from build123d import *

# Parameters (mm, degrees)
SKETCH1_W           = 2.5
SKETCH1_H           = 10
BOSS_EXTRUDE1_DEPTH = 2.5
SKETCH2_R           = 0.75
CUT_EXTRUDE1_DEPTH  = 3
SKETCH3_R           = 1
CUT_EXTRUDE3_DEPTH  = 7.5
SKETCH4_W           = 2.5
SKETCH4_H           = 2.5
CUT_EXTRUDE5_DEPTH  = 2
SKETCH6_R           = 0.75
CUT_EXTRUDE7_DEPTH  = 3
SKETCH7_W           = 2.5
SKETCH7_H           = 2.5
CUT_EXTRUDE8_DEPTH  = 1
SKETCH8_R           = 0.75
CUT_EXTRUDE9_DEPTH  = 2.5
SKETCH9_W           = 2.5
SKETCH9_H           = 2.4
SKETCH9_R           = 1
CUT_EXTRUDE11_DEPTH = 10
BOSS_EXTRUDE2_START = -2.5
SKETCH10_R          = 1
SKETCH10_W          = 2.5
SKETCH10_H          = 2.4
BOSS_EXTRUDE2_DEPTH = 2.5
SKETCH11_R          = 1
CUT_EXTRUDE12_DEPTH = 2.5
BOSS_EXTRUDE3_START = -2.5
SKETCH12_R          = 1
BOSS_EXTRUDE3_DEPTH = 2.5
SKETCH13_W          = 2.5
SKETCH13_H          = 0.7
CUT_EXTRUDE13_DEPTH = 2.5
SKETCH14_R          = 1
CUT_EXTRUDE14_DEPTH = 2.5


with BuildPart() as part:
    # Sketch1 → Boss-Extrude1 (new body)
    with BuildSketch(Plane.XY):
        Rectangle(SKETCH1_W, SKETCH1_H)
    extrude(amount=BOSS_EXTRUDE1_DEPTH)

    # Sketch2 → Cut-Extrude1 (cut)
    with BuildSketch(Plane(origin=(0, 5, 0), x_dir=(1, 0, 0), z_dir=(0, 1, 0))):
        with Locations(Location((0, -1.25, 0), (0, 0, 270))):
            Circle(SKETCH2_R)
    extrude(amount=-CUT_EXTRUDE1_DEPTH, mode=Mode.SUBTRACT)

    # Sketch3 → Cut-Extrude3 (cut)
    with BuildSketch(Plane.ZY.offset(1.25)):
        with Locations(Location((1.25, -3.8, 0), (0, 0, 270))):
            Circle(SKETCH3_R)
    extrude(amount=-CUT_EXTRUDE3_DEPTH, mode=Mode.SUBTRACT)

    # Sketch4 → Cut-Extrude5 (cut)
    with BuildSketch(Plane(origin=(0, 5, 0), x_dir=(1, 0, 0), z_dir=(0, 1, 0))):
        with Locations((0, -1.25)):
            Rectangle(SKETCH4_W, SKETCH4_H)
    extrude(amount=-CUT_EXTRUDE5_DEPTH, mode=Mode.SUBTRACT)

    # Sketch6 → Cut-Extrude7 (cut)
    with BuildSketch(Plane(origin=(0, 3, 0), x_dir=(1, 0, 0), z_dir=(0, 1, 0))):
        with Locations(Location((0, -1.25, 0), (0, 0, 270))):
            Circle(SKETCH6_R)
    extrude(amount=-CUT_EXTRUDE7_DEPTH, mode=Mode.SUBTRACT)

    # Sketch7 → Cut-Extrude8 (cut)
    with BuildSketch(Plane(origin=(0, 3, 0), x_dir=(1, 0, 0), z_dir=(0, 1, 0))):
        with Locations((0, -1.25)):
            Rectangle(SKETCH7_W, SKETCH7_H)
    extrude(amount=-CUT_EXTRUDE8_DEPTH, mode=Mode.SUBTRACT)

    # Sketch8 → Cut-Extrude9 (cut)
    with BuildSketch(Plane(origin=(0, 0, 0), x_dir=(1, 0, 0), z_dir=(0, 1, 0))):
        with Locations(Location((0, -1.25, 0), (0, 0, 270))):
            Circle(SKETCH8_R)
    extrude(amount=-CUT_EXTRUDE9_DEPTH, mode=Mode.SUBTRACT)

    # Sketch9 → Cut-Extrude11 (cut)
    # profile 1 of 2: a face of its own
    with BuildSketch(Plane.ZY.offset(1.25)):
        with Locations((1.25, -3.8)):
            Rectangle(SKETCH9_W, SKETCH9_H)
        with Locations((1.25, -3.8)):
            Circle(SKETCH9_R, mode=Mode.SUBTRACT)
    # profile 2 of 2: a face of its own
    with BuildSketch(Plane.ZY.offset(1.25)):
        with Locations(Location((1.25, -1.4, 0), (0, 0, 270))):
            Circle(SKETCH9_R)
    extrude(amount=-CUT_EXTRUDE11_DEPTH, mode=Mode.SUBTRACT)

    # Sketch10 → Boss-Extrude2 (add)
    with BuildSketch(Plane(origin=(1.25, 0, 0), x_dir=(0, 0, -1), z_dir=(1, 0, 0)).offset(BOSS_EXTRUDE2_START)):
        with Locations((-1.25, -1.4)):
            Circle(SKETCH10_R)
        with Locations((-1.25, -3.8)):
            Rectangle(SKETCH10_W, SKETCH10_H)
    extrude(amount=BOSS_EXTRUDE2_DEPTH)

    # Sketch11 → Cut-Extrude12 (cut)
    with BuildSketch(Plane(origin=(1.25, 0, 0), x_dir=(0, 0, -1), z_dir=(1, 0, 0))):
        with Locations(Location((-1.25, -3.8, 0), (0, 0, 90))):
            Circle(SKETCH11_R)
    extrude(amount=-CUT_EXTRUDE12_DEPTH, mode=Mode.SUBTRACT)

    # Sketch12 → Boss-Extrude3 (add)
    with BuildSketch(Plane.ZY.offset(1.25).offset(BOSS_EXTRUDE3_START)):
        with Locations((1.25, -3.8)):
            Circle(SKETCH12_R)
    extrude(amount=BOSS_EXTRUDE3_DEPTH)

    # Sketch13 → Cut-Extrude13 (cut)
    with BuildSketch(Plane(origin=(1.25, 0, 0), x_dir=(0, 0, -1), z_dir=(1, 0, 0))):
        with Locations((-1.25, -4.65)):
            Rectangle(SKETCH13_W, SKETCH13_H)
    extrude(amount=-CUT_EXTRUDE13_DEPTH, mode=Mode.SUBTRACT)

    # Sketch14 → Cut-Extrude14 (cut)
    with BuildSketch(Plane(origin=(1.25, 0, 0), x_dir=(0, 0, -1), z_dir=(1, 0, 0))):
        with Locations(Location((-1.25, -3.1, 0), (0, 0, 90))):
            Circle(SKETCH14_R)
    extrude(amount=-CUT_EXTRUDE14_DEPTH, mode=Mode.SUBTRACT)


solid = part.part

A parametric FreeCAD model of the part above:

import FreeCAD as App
import Part
import Sketcher
from FreeCAD import Vector


def add_polygon(sketch, points):
    """Adds a closed chain of lines whose ends are joined by coincident constraints."""
    first, n = sketch.GeometryCount, len(points)
    for a, b in zip(points, points[1:] + points[:1]):
        sketch.addGeometry(Part.LineSegment(App.Vector(*a, 0), App.Vector(*b, 0)), False)
    for i in range(n):
        sketch.addConstraint(Sketcher.Constraint("Coincident", first + i, 2, first + (i + 1) % n, 1))

doc = App.newDocument("Part")
body = doc.addObject("PartDesign::Body", "Body")

# Sketch on XY plane
sketch1 = body.newObject("Sketcher::SketchObject", "Sketch")
sketch1.AttachmentSupport = (doc.getObject("XY_Plane"), [""])
sketch1.MapMode = "FlatFace"
add_polygon(sketch1, [(-1.2, 5), (-1.2, -5), (1.2, -5), (1.2, 5)])  # lines 0-3
sketch1.addConstraint([
    Sketcher.Constraint("Vertical", 0),
    Sketcher.Constraint("Horizontal", 1),
    Sketcher.Constraint("Vertical", 2),
    Sketcher.Constraint("Horizontal", 3),
    Sketcher.Constraint("Symmetric", 0, 2, 2, 2, -1, 1),
    Sketcher.Constraint("DistanceY", 0, 2, 0, 1, 10.0),
    Sketcher.Constraint("DistanceX", 1, 1, 1, 2, 2.5),
])
pad1 = body.newObject("PartDesign::Pad", "Pad")
pad1.Profile = sketch1
pad1.Length = 2.5

# Sketch on XZ plane
sketch2 = body.newObject("Sketcher::SketchObject", "Sketch001")
sketch2.AttachmentSupport = (doc.getObject("XZ_Plane"), [""])
sketch2.MapMode = "FlatFace"
sketch2.AttachmentOffset = App.Placement(Vector(0, 0, -5), App.Rotation())
sketch2.addGeometry(Part.Circle(Vector(0, 1.2, 0), Vector(0, 0, 1), 0.8), False)
sketch2.addConstraint([
    Sketcher.Constraint("PointOnObject", 0, 3, -2),
    Sketcher.Constraint("Diameter", 0, 1.5),
    Sketcher.Constraint("DistanceY", -1, 1, 0, 3, 1.25),
])
pocket1 = body.newObject("PartDesign::Pocket", "Pocket")
pocket1.Profile = sketch2
pocket1.Length = 3
pocket1.Reversed = True

# Sketch on YZ plane
sketch3 = body.newObject("Sketcher::SketchObject", "Sketch002")
sketch3.AttachmentSupport = (doc.getObject("YZ_Plane"), [""])
sketch3.MapMode = "FlatFace"
sketch3.AttachmentOffset = App.Placement(Vector(0, 0, -1.25), App.Rotation())
sketch3.addGeometry(Part.Circle(Vector(-3.8, 1.2, 0), Vector(0, 0, 1), 1), False)
sketch3.addConstraint([
    Sketcher.Constraint("Diameter", 0, 2.0),
    Sketcher.Constraint("DistanceX", 0, 3, -1, 1, 3.8),
    Sketcher.Constraint("DistanceY", -1, 1, 0, 3, 1.25),
])
pocket2 = body.newObject("PartDesign::Pocket", "Pocket001")
pocket2.Profile = sketch3
pocket2.Length = 7.5
pocket2.Reversed = True

# Sketch on XZ plane
sketch4 = body.newObject("Sketcher::SketchObject", "Sketch003")
sketch4.AttachmentSupport = (doc.getObject("XZ_Plane"), [""])
sketch4.MapMode = "FlatFace"
sketch4.AttachmentOffset = App.Placement(Vector(0, 0, -5), App.Rotation())
add_polygon(sketch4, [(-1.2, 0), (-1.2, 2.5), (1.2, 2.5), (1.2, 0)])  # lines 0-3
sketch4.addConstraint([
    Sketcher.Constraint("Vertical", 0),
    Sketcher.Constraint("Horizontal", 1),
    Sketcher.Constraint("Vertical", 2),
    Sketcher.Constraint("Horizontal", 3),
    Sketcher.Constraint("Symmetric", 2, 2, 3, 2, -1, 1),
    Sketcher.Constraint("Equal", 3, 0),
    Sketcher.Constraint("DistanceX", 1, 1, 1, 2, 2.5),
])
pocket3 = body.newObject("PartDesign::Pocket", "Pocket002")
pocket3.Profile = sketch4
pocket3.Length = 2
pocket3.Reversed = True

# Sketch on XZ plane
sketch5 = body.newObject("Sketcher::SketchObject", "Sketch004")
sketch5.AttachmentSupport = (doc.getObject("XZ_Plane"), [""])
sketch5.MapMode = "FlatFace"
sketch5.AttachmentOffset = App.Placement(Vector(0, 0, -3), App.Rotation())
sketch5.addGeometry(Part.Circle(Vector(0, 1.2, 0), Vector(0, 0, 1), 0.8), False)
sketch5.addConstraint([
    Sketcher.Constraint("PointOnObject", 0, 3, -2),
    Sketcher.Constraint("Diameter", 0, 1.5),
    Sketcher.Constraint("DistanceY", -1, 1, 0, 3, 1.25),
])
pocket4 = body.newObject("PartDesign::Pocket", "Pocket003")
pocket4.Profile = sketch5
pocket4.Length = 3
pocket4.Reversed = True

# Sketch on XZ plane
sketch6 = body.newObject("Sketcher::SketchObject", "Sketch005")
sketch6.AttachmentSupport = (doc.getObject("XZ_Plane"), [""])
sketch6.MapMode = "FlatFace"
sketch6.AttachmentOffset = App.Placement(Vector(0, 0, -3), App.Rotation())
add_polygon(sketch6, [(-1.2, 0), (-1.2, 2.5), (1.2, 2.5), (1.2, 0)])  # lines 0-3
sketch6.addConstraint([
    Sketcher.Constraint("Vertical", 0),
    Sketcher.Constraint("Horizontal", 1),
    Sketcher.Constraint("Vertical", 2),
    Sketcher.Constraint("Horizontal", 3),
    Sketcher.Constraint("Symmetric", 2, 2, 3, 2, -1, 1),
    Sketcher.Constraint("Equal", 3, 0),
    Sketcher.Constraint("DistanceX", 1, 1, 1, 2, 2.5),
])
pocket5 = body.newObject("PartDesign::Pocket", "Pocket004")
pocket5.Profile = sketch6
pocket5.Length = 1
pocket5.Reversed = True

# Sketch on XZ plane
sketch7 = body.newObject("Sketcher::SketchObject", "Sketch006")
sketch7.AttachmentSupport = (doc.getObject("XZ_Plane"), [""])
sketch7.MapMode = "FlatFace"
sketch7.addGeometry(Part.Circle(Vector(0, 1.2, 0), Vector(0, 0, 1), 0.8), False)
sketch7.addConstraint([
    Sketcher.Constraint("PointOnObject", 0, 3, -2),
    Sketcher.Constraint("Diameter", 0, 1.5),
    Sketcher.Constraint("DistanceY", -1, 1, 0, 3, 1.25),
])
pocket6 = body.newObject("PartDesign::Pocket", "Pocket005")
pocket6.Profile = sketch7
pocket6.Length = 2.5
pocket6.Reversed = True

# Sketch on YZ plane
sketch8 = body.newObject("Sketcher::SketchObject", "Sketch007")
sketch8.AttachmentSupport = (doc.getObject("YZ_Plane"), [""])
sketch8.MapMode = "FlatFace"
sketch8.AttachmentOffset = App.Placement(Vector(0, 0, -1.25), App.Rotation())
add_polygon(sketch8, [(-2.6, 0), (-5, 0), (-5, 2.5), (-2.6, 2.5)])  # lines 0-3
sketch8.addGeometry(Part.Circle(Vector(-3.8, 1.2, 0), Vector(0, 0, 1), 1), False)  # 4
sketch8.addGeometry(Part.Circle(Vector(-1.4, 1.2, 0), Vector(0, 0, 1), 1), False)  # 5
sketch8.addConstraint([
    Sketcher.Constraint("Horizontal", 0),
    Sketcher.Constraint("Vertical", 1),
    Sketcher.Constraint("Horizontal", 2),
    Sketcher.Constraint("Vertical", 3),
    Sketcher.Constraint("Equal", 4, 5),
    Sketcher.Constraint("PointOnObject", 0, 2, -1),
    Sketcher.Constraint("Horizontal", 4, 3, 5, 3),
    Sketcher.Constraint("Diameter", 4, 2.0),
    Sketcher.Constraint("DistanceX", 0, 2, 0, 1, 2.4),
    Sketcher.Constraint("DistanceY", 1, 1, 1, 2, 2.5),
    Sketcher.Constraint("DistanceX", 0, 2, -1, 1, 5.0),
    Sketcher.Constraint("DistanceX", 4, 3, -1, 1, 3.8),
    Sketcher.Constraint("DistanceX", 5, 3, -1, 1, 1.4),
    Sketcher.Constraint("DistanceY", -1, 1, 4, 3, 1.25),
])
pocket7 = body.newObject("PartDesign::Pocket", "Pocket006")
pocket7.Profile = sketch8
pocket7.Length = 10
pocket7.Reversed = True

# Sketch on YZ plane
sketch9 = body.newObject("Sketcher::SketchObject", "Sketch008")
sketch9.AttachmentSupport = (doc.getObject("YZ_Plane"), [""])
sketch9.MapMode = "FlatFace"
sketch9.AttachmentOffset = App.Placement(Vector(0, 0, -1.25), App.Rotation())
sketch9.addGeometry(Part.Circle(Vector(-1.4, 1.2, 0), Vector(0, 0, 1), 1), False)  # 0
add_polygon(sketch9, [(-2.6, 2.5), (-5, 2.5), (-5, 0), (-2.6, 0)])  # lines 1-4
sketch9.addConstraint([
    Sketcher.Constraint("Horizontal", 1),
    Sketcher.Constraint("Vertical", 2),
    Sketcher.Constraint("Horizontal", 3),
    Sketcher.Constraint("Vertical", 4),
    Sketcher.Constraint("PointOnObject", 2, 2, -1),
    Sketcher.Constraint("Diameter", 0, 2.0),
    Sketcher.Constraint("DistanceX", 1, 2, 1, 1, 2.4),
    Sketcher.Constraint("DistanceY", 2, 2, 2, 1, 2.5),
    Sketcher.Constraint("DistanceX", 1, 2, -1, 1, 5.0),
    Sketcher.Constraint("DistanceX", 0, 3, -1, 1, 1.4),
    Sketcher.Constraint("DistanceY", -1, 1, 0, 3, 1.25),
])
pad2 = body.newObject("PartDesign::Pad", "Pad001")
pad2.Profile = sketch9
pad2.Length = 2.5

# Sketch on YZ plane
sketch10 = body.newObject("Sketcher::SketchObject", "Sketch009")
sketch10.AttachmentSupport = (doc.getObject("YZ_Plane"), [""])
sketch10.MapMode = "FlatFace"
sketch10.AttachmentOffset = App.Placement(Vector(0, 0, 1.25), App.Rotation())
sketch10.addGeometry(Part.Circle(Vector(-3.8, 1.2, 0), Vector(0, 0, 1), 1), False)
sketch10.addConstraint([
    Sketcher.Constraint("Diameter", 0, 2.0),
    Sketcher.Constraint("DistanceX", 0, 3, -1, 1, 3.8),
    Sketcher.Constraint("DistanceY", -1, 1, 0, 3, 1.25),
])
pocket8 = body.newObject("PartDesign::Pocket", "Pocket007")
pocket8.Profile = sketch10
pocket8.Length = 2.5

# Sketch on YZ plane
sketch11 = body.newObject("Sketcher::SketchObject", "Sketch010")
sketch11.AttachmentSupport = (doc.getObject("YZ_Plane"), [""])
sketch11.MapMode = "FlatFace"
sketch11.AttachmentOffset = App.Placement(Vector(0, 0, 1.25), App.Rotation())
sketch11.addGeometry(Part.Circle(Vector(-3.8, 1.2, 0), Vector(0, 0, 1), 1), False)
sketch11.addConstraint([
    Sketcher.Constraint("Diameter", 0, 2.0),
    Sketcher.Constraint("DistanceX", 0, 3, -1, 1, 3.8),
    Sketcher.Constraint("DistanceY", -1, 1, 0, 3, 1.25),
])
pad3 = body.newObject("PartDesign::Pad", "Pad002")
pad3.Profile = sketch11
pad3.Length = 2.5
pad3.Reversed = True

# Sketch on YZ plane
sketch12 = body.newObject("Sketcher::SketchObject", "Sketch011")
sketch12.AttachmentSupport = (doc.getObject("YZ_Plane"), [""])
sketch12.MapMode = "FlatFace"
sketch12.AttachmentOffset = App.Placement(Vector(0, 0, 1.25), App.Rotation())
add_polygon(sketch12, [(-4.3, 2.5), (-5, 2.5), (-5, 0), (-4.3, 0)])  # lines 0-3
sketch12.addConstraint([
    Sketcher.Constraint("Horizontal", 0),
    Sketcher.Constraint("Vertical", 1),
    Sketcher.Constraint("Horizontal", 2),
    Sketcher.Constraint("Vertical", 3),
    Sketcher.Constraint("PointOnObject", 1, 2, -1),
    Sketcher.Constraint("DistanceX", 0, 2, 0, 1, 0.7),
    Sketcher.Constraint("DistanceY", 1, 2, 1, 1, 2.5),
    Sketcher.Constraint("DistanceX", 0, 2, -1, 1, 5.0),
])
pocket9 = body.newObject("PartDesign::Pocket", "Pocket008")
pocket9.Profile = sketch12
pocket9.Length = 2.5

# Sketch on YZ plane
sketch13 = body.newObject("Sketcher::SketchObject", "Sketch012")
sketch13.AttachmentSupport = (doc.getObject("YZ_Plane"), [""])
sketch13.MapMode = "FlatFace"
sketch13.AttachmentOffset = App.Placement(Vector(0, 0, 1.25), App.Rotation())
sketch13.addGeometry(Part.Circle(Vector(-3.1, 1.2, 0), Vector(0, 0, 1), 1), False)
sketch13.addConstraint([
    Sketcher.Constraint("Diameter", 0, 2.0),
    Sketcher.Constraint("DistanceX", 0, 3, -1, 1, 3.1),
    Sketcher.Constraint("DistanceY", -1, 1, 0, 3, 1.25),
])
pocket10 = body.newObject("PartDesign::Pocket", "Pocket009")
pocket10.Profile = sketch13
pocket10.Length = 2.5

doc.recompute()
